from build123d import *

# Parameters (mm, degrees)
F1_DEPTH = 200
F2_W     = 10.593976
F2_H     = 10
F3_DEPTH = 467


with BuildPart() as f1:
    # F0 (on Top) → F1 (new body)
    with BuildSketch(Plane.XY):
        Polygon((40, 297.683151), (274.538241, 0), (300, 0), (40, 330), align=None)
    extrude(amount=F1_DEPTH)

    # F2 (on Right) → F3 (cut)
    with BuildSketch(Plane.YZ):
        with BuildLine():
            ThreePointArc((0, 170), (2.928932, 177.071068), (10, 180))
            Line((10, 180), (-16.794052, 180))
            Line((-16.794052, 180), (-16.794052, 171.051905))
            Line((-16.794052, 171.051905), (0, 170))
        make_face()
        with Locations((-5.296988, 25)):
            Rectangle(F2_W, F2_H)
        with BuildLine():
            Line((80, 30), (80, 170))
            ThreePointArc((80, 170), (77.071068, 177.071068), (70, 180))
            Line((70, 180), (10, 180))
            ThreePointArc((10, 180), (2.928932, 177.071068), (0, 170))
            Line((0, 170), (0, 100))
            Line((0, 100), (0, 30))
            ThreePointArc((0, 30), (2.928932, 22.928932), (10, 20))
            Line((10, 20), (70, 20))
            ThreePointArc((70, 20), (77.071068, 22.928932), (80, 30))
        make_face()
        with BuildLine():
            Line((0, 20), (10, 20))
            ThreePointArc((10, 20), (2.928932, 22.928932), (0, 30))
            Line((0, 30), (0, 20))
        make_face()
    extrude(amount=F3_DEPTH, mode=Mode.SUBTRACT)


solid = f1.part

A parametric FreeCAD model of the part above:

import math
import FreeCAD as App
import Part
import Sketcher

V = App.Vector

doc = App.newDocument("Part")
body = doc.addObject("PartDesign::Body", "Body")

# Sketch on XY plane
sketch1 = body.newObject("Sketcher::SketchObject", "Sketch")
sketch1.AttachmentSupport = (doc.getObject("XY_Plane"), [""])
sketch1.MapMode = "FlatFace"
sketch1.addGeometry([
    Part.LineSegment(V(40, 297.683151, 0), V(274.538241, 0, 0)),
    Part.LineSegment(V(274.538241, 0, 0), V(300, 0, 0)),
    Part.LineSegment(V(300, 0, 0), V(40, 330, 0)),
    Part.LineSegment(V(40, 330, 0), V(40, 297.683151, 0)),
], False)
sketch1.addConstraint([
    Sketcher.Constraint("Coincident", 0, 2, 1, 1),
    Sketcher.Constraint("Coincident", 1, 2, 2, 1),
    Sketcher.Constraint("Coincident", 2, 2, 3, 1),
    Sketcher.Constraint("Coincident", 3, 2, 0, 1),
    Sketcher.Constraint("Horizontal", 1),
    Sketcher.Constraint("Vertical", 3),
    Sketcher.Constraint("PointOnObject", 0, 2, -1),
    Sketcher.Constraint("Parallel", 0, 2),
    Sketcher.Constraint("DistanceX", -1, 1, 1, 2, 300.0),
    Sketcher.Constraint("DistanceX", -1, 1, 2, 2, 40.0),
    Sketcher.Constraint("DistanceY", -1, 1, 2, 2, 330.0),
    Sketcher.Constraint("DistanceX", 1, 1, 1, 2, 25.461759),
])
pad1 = body.newObject("PartDesign::Pad", "Pad")
pad1.Profile = sketch1
pad1.Length = 200

# Sketch on YZ plane
sketch2 = body.newObject("Sketcher::SketchObject", "Sketch001")
sketch2.AttachmentSupport = (doc.getObject("YZ_Plane"), [""])
sketch2.MapMode = "FlatFace"
sketch2.addGeometry([
    Part.LineSegment(V(-16.794052, 180, 0), V(-16.794052, 171.051905, 0)),  # 0
    Part.LineSegment(V(-16.794052, 171.051905, 0), V(0, 170, 0)),  # 1
    Part.LineSegment(V(0, 170, 0), V(0, 30, 0)),  # 2
    Part.LineSegment(V(0, 30, 0), V(-10.593976, 30, 0)),  # 3
    Part.LineSegment(V(-10.593976, 30, 0), V(-10.593976, 20, 0)),  # 4
    Part.LineSegment(V(-10.593976, 20, 0), V(70, 20, 0)),  # 5
    Part.ArcOfCircle(Part.Circle(V(70.000001, 29.999999, 0), V(0, 0, 1), 9.999999), math.radians(-90.000004), math.radians(0.000004)),  # 6
    Part.LineSegment(V(80, 30, 0), V(80, 170, 0)),  # 7
    Part.ArcOfCircle(Part.Circle(V(70.000001, 170.000001, 0), V(0, 0, 1), 9.999999), math.radians(-0.000004), math.radians(90.000004)),  # 8
    Part.LineSegment(V(70, 180, 0), V(-16.794052, 180, 0)),  # 9
], False)
sketch2.addConstraint([
    Sketcher.Constraint("Coincident", 0, 2, 1, 1),
    Sketcher.Constraint("Coincident", 1, 2, 2, 1),
    Sketcher.Constraint("Coincident", 2, 2, 3, 1),
    Sketcher.Constraint("Coincident", 3, 2, 4, 1),
    Sketcher.Constraint("Coincident", 4, 2, 5, 1),
    Sketcher.Constraint("Tangent", 5, 2, 6, 1),
    Sketcher.Constraint("Tangent", 6, 2, 7, 1),
    Sketcher.Constraint("Tangent", 7, 2, 8, 1),
    Sketcher.Constraint("Tangent", 8, 2, 9, 1),
    Sketcher.Constraint("Coincident", 9, 2, 0, 1),
    Sketcher.Constraint("Vertical", 0),
    Sketcher.Constraint("Vertical", 2),
    Sketcher.Constraint("Horizontal", 3),
    Sketcher.Constraint("Vertical", 4),
    Sketcher.Constraint("Horizontal", 5),
    Sketcher.Constraint("Vertical", 7),
    Sketcher.Constraint("Horizontal", 9),
    Sketcher.Constraint("Equal", 6, 8),
    Sketcher.Constraint("PointOnObject", 1, 2, -2),
    Sketcher.Constraint("Horizontal", 8, 3, 1, 2),
    Sketcher.Constraint("Horizontal", 6, 3, 2, 2),
    Sketcher.Constraint("Radius", 6, 9.999999),
    Sketcher.Constraint("DistanceY", 2, 2, 2, 1, 140.0),
    Sketcher.Constraint("DistanceX", -1, 1, 6, 3, 70.000001),
    Sketcher.Constraint("DistanceY", -1, 1, 6, 3, 29.999999),
    Sketcher.Constraint("DistanceX", 9, 2, 9, 1, 86.794052),
    Sketcher.Constraint("DistanceX", 3, 2, 3, 1, 10.593976),
    Sketcher.Constraint("DistanceY", 0, 2, 0, 1, 8.948095),
])
pocket1 = body.newObject("PartDesign::Pocket", "Pocket")
pocket1.Profile = sketch2
pocket1.Length = 467
pocket1.Reversed = True

doc.recompute()
